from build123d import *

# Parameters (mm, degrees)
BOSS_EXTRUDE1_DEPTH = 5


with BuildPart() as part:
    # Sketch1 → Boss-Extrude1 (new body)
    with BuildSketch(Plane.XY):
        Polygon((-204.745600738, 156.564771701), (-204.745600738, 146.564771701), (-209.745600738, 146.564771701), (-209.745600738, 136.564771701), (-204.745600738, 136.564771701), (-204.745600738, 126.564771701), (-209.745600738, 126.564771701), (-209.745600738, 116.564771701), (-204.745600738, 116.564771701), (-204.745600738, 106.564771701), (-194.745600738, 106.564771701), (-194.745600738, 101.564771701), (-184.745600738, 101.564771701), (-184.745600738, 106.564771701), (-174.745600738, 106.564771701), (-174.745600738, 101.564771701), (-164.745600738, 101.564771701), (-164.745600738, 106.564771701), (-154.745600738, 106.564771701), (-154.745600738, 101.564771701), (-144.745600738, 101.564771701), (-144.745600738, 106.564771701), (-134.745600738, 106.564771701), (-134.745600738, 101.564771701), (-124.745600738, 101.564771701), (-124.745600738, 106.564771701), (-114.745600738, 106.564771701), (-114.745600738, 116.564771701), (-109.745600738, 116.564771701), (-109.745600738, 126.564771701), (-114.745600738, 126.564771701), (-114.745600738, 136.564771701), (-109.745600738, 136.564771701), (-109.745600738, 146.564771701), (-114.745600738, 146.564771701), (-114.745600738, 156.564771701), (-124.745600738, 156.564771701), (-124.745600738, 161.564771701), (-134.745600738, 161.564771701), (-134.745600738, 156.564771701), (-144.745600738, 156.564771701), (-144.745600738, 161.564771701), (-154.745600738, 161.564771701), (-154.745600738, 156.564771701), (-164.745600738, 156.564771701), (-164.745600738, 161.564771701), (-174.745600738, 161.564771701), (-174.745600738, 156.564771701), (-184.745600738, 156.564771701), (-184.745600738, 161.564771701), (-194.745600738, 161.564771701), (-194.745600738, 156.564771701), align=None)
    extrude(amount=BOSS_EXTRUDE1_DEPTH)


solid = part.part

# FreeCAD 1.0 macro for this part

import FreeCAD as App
import Part
import Sketcher
from FreeCAD import Vector
Q = App.Units.Quantity


def add_polygon(sketch, points):
    """Adds a closed chain of lines whose ends are joined by coincident constraints."""
    first, n = sketch.GeometryCount, len(points)
    for a, b in zip(points, points[1:] + points[:1]):
        sketch.addGeometry(Part.LineSegment(App.Vector(*a, 0), App.Vector(*b, 0)), False)
    for i in range(n):
        sketch.addConstraint(Sketcher.Constraint("Coincident", first + i, 2, first + (i + 1) % n, 1))

doc = App.newDocument("Part")
body = doc.addObject("PartDesign::Body", "Body")

sketch1 = body.newObject("Sketcher::SketchObject", "Sketch")
sketch1.AttachmentSupport = (doc.getObject("XY_Plane"), [""])
sketch1.MapMode = "FlatFace"
add_polygon(sketch1, [(-205, 157), (-205, 147), (-210, 147), (-210, 137), (-205, 137), (-205, 127), (-210, 127), (-210, 117), (-205, 117), (-205, 107), (-195, 107), (-195, 102), (-185, 102), (-185, 107), (-175, 107), (-175, 102), (-165, 102), (-165, 107), (-155, 107), (-155, 102), (-145, 102), (-145, 107), (-135, 107), (-135, 102), (-125, 102), (-125, 107), (-115, 107), (-115, 117), (-110, 117), (-110, 127), (-115, 127), (-115, 137), (-110, 137), (-110, 147), (-115, 147), (-115, 157), (-125, 157), (-125, 162), (-135, 162), (-135, 157), (-145, 157), (-145, 162), (-155, 162), (-155, 157), (-165, 157), (-165, 162), (-175, 162), (-175, 157), (-185, 157), (-185, 162), (-195, 162), (-195, 157)])
sketch1.addConstraint([
    Sketcher.Constraint("Vertical", 0),
    Sketcher.Constraint("Horizontal", 1),
    Sketcher.Constraint("Vertical", 2),
    Sketcher.Constraint("Horizontal", 3),
    Sketcher.Constraint("Vertical", 4),
    Sketcher.Constraint("Horizontal", 5),
    Sketcher.Constraint("Vertical", 6),
    Sketcher.Constraint("Horizontal", 7),
    Sketcher.Constraint("Vertical", 8),
    Sketcher.Constraint("Horizontal", 9),
    Sketcher.Constraint("Vertical", 10),
    Sketcher.Constraint("Horizontal", 11),
    Sketcher.Constraint("Vertical", 12),
    Sketcher.Constraint("Horizontal", 13),
    Sketcher.Constraint("Vertical", 14),
    Sketcher.Constraint("Horizontal", 15),
    Sketcher.Constraint("Vertical", 16),
    Sketcher.Constraint("Horizontal", 17),
    Sketcher.Constraint("Vertical", 18),
    Sketcher.Constraint("Horizontal", 19),
    Sketcher.Constraint("Vertical", 20),
    Sketcher.Constraint("Horizontal", 21),
    Sketcher.Constraint("Vertical", 22),
    Sketcher.Constraint("Horizontal", 23),
    Sketcher.Constraint("Vertical", 24),
    Sketcher.Constraint("Horizontal", 25),
    Sketcher.Constraint("Vertical", 26),
    Sketcher.Constraint("Horizontal", 27),
    Sketcher.Constraint("Vertical", 28),
    Sketcher.Constraint("Horizontal", 29),
    Sketcher.Constraint("Vertical", 30),
    Sketcher.Constraint("Horizontal", 31),
    Sketcher.Constraint("Vertical", 32),
    Sketcher.Constraint("Horizontal", 33),
    Sketcher.Constraint("Vertical", 34),
    Sketcher.Constraint("Horizontal", 35),
    Sketcher.Constraint("Vertical", 36),
    Sketcher.Constraint("Horizontal", 37),
    Sketcher.Constraint("Vertical", 38),
    Sketcher.Constraint("Horizontal", 39),
    Sketcher.Constraint("Vertical", 40),
    Sketcher.Constraint("Horizontal", 41),
    Sketcher.Constraint("Vertical", 42),
    Sketcher.Constraint("Horizontal", 43),
    Sketcher.Constraint("Vertical", 44),
    Sketcher.Constraint("Horizontal", 45),
    Sketcher.Constraint("Vertical", 46),
    Sketcher.Constraint("Horizontal", 47),
    Sketcher.Constraint("Vertical", 48),
    Sketcher.Constraint("Horizontal", 49),
    Sketcher.Constraint("Vertical", 50),
    Sketcher.Constraint("Horizontal", 51),
    Sketcher.Constraint("Horizontal", 9, 2, 12, 2),
    Sketcher.Constraint("Horizontal", 11, 2, 14, 2),
    Sketcher.Constraint("Horizontal", 13, 2, 16, 2),
    Sketcher.Constraint("Horizontal", 15, 2, 18, 2),
    Sketcher.Constraint("Horizontal", 17, 2, 20, 2),
    Sketcher.Constraint("Horizontal", 19, 2, 22, 2),
    Sketcher.Constraint("Horizontal", 21, 2, 24, 2),
    Sketcher.Constraint("Horizontal", 7, 2, 26, 2),
    Sketcher.Constraint("Horizontal", 5, 2, 28, 2),
    Sketcher.Constraint("Horizontal", 3, 2, 30, 2),
    Sketcher.Constraint("Horizontal", 1, 2, 32, 2),
    Sketcher.Constraint("Horizontal", 35, 2, 38, 2),
    Sketcher.Constraint("Horizontal", 37, 2, 40, 2),
    Sketcher.Constraint("Horizontal", 39, 2, 42, 2),
    Sketcher.Constraint("Horizontal", 41, 2, 44, 2),
    Sketcher.Constraint("Horizontal", 43, 2, 46, 2),
    Sketcher.Constraint("Horizontal", 45, 2, 48, 2),
    Sketcher.Constraint("Horizontal", 47, 2, 50, 2),
    Sketcher.Constraint("Vertical", 0, 2, 3, 2),
    Sketcher.Constraint("Vertical", 2, 2, 5, 2),
    Sketcher.Constraint("Vertical", 4, 2, 7, 2),
    Sketcher.Constraint("Vertical", 26, 2, 29, 2),
    Sketcher.Constraint("Vertical", 28, 2, 31, 2),
    Sketcher.Constraint("Vertical", 30, 2, 33, 2),
    Sketcher.Constraint("Vertical", 24, 2, 35, 2),
    Sketcher.Constraint("Vertical", 22, 2, 37, 2),
    Sketcher.Constraint("Vertical", 20, 2, 39, 2),
    Sketcher.Constraint("Vertical", 18, 2, 41, 2),
    Sketcher.Constraint("Vertical", 16, 2, 43, 2),
    Sketcher.Constraint("Vertical", 14, 2, 45, 2),
    Sketcher.Constraint("Vertical", 12, 2, 47, 2),
    Sketcher.Constraint("Vertical", 10, 2, 49, 2),
    Sketcher.Constraint("Equal", 9, 11),
    Sketcher.Constraint("Equal", 11, 13),
    Sketcher.Constraint("Equal", 13, 15),
    Sketcher.Constraint("Equal", 15, 17),
    Sketcher.Constraint("Equal", 17, 19),
    Sketcher.Constraint("Equal", 19, 21),
    Sketcher.Constraint("Equal", 21, 23),
    Sketcher.Constraint("Equal", 23, 25),
    Sketcher.Constraint("Equal", 7, 27),
    Sketcher.Constraint("Equal", 51, 0),
    Sketcher.Constraint("Equal", 0, 2),
    Sketcher.Constraint("Equal", 2, 4),
    Sketcher.Constraint("Equal", 4, 6),
    Sketcher.Constraint("Equal", 6, 8),
    Sketcher.Constraint("Equal", 33, 10),
    Sketcher.Constraint("Equal", 24, 36),
    Sketcher.Constraint("DistanceX", 1, 2, 1, 1, Q("5 mm")),
    Sketcher.Constraint("DistanceX", 9, 1, 9, 2, Q("10 mm")),
    Sketcher.Constraint("DistanceX", 0, 2, -1, 1, Q("204.745601 mm")),
    Sketcher.Constraint("DistanceY", -1, 1, 0, 2, Q("146.564772 mm")),
])
pad1 = body.newObject("PartDesign::Pad", "Pad")
pad1.Profile = sketch1
pad1.Length = 5

doc.recompute()
